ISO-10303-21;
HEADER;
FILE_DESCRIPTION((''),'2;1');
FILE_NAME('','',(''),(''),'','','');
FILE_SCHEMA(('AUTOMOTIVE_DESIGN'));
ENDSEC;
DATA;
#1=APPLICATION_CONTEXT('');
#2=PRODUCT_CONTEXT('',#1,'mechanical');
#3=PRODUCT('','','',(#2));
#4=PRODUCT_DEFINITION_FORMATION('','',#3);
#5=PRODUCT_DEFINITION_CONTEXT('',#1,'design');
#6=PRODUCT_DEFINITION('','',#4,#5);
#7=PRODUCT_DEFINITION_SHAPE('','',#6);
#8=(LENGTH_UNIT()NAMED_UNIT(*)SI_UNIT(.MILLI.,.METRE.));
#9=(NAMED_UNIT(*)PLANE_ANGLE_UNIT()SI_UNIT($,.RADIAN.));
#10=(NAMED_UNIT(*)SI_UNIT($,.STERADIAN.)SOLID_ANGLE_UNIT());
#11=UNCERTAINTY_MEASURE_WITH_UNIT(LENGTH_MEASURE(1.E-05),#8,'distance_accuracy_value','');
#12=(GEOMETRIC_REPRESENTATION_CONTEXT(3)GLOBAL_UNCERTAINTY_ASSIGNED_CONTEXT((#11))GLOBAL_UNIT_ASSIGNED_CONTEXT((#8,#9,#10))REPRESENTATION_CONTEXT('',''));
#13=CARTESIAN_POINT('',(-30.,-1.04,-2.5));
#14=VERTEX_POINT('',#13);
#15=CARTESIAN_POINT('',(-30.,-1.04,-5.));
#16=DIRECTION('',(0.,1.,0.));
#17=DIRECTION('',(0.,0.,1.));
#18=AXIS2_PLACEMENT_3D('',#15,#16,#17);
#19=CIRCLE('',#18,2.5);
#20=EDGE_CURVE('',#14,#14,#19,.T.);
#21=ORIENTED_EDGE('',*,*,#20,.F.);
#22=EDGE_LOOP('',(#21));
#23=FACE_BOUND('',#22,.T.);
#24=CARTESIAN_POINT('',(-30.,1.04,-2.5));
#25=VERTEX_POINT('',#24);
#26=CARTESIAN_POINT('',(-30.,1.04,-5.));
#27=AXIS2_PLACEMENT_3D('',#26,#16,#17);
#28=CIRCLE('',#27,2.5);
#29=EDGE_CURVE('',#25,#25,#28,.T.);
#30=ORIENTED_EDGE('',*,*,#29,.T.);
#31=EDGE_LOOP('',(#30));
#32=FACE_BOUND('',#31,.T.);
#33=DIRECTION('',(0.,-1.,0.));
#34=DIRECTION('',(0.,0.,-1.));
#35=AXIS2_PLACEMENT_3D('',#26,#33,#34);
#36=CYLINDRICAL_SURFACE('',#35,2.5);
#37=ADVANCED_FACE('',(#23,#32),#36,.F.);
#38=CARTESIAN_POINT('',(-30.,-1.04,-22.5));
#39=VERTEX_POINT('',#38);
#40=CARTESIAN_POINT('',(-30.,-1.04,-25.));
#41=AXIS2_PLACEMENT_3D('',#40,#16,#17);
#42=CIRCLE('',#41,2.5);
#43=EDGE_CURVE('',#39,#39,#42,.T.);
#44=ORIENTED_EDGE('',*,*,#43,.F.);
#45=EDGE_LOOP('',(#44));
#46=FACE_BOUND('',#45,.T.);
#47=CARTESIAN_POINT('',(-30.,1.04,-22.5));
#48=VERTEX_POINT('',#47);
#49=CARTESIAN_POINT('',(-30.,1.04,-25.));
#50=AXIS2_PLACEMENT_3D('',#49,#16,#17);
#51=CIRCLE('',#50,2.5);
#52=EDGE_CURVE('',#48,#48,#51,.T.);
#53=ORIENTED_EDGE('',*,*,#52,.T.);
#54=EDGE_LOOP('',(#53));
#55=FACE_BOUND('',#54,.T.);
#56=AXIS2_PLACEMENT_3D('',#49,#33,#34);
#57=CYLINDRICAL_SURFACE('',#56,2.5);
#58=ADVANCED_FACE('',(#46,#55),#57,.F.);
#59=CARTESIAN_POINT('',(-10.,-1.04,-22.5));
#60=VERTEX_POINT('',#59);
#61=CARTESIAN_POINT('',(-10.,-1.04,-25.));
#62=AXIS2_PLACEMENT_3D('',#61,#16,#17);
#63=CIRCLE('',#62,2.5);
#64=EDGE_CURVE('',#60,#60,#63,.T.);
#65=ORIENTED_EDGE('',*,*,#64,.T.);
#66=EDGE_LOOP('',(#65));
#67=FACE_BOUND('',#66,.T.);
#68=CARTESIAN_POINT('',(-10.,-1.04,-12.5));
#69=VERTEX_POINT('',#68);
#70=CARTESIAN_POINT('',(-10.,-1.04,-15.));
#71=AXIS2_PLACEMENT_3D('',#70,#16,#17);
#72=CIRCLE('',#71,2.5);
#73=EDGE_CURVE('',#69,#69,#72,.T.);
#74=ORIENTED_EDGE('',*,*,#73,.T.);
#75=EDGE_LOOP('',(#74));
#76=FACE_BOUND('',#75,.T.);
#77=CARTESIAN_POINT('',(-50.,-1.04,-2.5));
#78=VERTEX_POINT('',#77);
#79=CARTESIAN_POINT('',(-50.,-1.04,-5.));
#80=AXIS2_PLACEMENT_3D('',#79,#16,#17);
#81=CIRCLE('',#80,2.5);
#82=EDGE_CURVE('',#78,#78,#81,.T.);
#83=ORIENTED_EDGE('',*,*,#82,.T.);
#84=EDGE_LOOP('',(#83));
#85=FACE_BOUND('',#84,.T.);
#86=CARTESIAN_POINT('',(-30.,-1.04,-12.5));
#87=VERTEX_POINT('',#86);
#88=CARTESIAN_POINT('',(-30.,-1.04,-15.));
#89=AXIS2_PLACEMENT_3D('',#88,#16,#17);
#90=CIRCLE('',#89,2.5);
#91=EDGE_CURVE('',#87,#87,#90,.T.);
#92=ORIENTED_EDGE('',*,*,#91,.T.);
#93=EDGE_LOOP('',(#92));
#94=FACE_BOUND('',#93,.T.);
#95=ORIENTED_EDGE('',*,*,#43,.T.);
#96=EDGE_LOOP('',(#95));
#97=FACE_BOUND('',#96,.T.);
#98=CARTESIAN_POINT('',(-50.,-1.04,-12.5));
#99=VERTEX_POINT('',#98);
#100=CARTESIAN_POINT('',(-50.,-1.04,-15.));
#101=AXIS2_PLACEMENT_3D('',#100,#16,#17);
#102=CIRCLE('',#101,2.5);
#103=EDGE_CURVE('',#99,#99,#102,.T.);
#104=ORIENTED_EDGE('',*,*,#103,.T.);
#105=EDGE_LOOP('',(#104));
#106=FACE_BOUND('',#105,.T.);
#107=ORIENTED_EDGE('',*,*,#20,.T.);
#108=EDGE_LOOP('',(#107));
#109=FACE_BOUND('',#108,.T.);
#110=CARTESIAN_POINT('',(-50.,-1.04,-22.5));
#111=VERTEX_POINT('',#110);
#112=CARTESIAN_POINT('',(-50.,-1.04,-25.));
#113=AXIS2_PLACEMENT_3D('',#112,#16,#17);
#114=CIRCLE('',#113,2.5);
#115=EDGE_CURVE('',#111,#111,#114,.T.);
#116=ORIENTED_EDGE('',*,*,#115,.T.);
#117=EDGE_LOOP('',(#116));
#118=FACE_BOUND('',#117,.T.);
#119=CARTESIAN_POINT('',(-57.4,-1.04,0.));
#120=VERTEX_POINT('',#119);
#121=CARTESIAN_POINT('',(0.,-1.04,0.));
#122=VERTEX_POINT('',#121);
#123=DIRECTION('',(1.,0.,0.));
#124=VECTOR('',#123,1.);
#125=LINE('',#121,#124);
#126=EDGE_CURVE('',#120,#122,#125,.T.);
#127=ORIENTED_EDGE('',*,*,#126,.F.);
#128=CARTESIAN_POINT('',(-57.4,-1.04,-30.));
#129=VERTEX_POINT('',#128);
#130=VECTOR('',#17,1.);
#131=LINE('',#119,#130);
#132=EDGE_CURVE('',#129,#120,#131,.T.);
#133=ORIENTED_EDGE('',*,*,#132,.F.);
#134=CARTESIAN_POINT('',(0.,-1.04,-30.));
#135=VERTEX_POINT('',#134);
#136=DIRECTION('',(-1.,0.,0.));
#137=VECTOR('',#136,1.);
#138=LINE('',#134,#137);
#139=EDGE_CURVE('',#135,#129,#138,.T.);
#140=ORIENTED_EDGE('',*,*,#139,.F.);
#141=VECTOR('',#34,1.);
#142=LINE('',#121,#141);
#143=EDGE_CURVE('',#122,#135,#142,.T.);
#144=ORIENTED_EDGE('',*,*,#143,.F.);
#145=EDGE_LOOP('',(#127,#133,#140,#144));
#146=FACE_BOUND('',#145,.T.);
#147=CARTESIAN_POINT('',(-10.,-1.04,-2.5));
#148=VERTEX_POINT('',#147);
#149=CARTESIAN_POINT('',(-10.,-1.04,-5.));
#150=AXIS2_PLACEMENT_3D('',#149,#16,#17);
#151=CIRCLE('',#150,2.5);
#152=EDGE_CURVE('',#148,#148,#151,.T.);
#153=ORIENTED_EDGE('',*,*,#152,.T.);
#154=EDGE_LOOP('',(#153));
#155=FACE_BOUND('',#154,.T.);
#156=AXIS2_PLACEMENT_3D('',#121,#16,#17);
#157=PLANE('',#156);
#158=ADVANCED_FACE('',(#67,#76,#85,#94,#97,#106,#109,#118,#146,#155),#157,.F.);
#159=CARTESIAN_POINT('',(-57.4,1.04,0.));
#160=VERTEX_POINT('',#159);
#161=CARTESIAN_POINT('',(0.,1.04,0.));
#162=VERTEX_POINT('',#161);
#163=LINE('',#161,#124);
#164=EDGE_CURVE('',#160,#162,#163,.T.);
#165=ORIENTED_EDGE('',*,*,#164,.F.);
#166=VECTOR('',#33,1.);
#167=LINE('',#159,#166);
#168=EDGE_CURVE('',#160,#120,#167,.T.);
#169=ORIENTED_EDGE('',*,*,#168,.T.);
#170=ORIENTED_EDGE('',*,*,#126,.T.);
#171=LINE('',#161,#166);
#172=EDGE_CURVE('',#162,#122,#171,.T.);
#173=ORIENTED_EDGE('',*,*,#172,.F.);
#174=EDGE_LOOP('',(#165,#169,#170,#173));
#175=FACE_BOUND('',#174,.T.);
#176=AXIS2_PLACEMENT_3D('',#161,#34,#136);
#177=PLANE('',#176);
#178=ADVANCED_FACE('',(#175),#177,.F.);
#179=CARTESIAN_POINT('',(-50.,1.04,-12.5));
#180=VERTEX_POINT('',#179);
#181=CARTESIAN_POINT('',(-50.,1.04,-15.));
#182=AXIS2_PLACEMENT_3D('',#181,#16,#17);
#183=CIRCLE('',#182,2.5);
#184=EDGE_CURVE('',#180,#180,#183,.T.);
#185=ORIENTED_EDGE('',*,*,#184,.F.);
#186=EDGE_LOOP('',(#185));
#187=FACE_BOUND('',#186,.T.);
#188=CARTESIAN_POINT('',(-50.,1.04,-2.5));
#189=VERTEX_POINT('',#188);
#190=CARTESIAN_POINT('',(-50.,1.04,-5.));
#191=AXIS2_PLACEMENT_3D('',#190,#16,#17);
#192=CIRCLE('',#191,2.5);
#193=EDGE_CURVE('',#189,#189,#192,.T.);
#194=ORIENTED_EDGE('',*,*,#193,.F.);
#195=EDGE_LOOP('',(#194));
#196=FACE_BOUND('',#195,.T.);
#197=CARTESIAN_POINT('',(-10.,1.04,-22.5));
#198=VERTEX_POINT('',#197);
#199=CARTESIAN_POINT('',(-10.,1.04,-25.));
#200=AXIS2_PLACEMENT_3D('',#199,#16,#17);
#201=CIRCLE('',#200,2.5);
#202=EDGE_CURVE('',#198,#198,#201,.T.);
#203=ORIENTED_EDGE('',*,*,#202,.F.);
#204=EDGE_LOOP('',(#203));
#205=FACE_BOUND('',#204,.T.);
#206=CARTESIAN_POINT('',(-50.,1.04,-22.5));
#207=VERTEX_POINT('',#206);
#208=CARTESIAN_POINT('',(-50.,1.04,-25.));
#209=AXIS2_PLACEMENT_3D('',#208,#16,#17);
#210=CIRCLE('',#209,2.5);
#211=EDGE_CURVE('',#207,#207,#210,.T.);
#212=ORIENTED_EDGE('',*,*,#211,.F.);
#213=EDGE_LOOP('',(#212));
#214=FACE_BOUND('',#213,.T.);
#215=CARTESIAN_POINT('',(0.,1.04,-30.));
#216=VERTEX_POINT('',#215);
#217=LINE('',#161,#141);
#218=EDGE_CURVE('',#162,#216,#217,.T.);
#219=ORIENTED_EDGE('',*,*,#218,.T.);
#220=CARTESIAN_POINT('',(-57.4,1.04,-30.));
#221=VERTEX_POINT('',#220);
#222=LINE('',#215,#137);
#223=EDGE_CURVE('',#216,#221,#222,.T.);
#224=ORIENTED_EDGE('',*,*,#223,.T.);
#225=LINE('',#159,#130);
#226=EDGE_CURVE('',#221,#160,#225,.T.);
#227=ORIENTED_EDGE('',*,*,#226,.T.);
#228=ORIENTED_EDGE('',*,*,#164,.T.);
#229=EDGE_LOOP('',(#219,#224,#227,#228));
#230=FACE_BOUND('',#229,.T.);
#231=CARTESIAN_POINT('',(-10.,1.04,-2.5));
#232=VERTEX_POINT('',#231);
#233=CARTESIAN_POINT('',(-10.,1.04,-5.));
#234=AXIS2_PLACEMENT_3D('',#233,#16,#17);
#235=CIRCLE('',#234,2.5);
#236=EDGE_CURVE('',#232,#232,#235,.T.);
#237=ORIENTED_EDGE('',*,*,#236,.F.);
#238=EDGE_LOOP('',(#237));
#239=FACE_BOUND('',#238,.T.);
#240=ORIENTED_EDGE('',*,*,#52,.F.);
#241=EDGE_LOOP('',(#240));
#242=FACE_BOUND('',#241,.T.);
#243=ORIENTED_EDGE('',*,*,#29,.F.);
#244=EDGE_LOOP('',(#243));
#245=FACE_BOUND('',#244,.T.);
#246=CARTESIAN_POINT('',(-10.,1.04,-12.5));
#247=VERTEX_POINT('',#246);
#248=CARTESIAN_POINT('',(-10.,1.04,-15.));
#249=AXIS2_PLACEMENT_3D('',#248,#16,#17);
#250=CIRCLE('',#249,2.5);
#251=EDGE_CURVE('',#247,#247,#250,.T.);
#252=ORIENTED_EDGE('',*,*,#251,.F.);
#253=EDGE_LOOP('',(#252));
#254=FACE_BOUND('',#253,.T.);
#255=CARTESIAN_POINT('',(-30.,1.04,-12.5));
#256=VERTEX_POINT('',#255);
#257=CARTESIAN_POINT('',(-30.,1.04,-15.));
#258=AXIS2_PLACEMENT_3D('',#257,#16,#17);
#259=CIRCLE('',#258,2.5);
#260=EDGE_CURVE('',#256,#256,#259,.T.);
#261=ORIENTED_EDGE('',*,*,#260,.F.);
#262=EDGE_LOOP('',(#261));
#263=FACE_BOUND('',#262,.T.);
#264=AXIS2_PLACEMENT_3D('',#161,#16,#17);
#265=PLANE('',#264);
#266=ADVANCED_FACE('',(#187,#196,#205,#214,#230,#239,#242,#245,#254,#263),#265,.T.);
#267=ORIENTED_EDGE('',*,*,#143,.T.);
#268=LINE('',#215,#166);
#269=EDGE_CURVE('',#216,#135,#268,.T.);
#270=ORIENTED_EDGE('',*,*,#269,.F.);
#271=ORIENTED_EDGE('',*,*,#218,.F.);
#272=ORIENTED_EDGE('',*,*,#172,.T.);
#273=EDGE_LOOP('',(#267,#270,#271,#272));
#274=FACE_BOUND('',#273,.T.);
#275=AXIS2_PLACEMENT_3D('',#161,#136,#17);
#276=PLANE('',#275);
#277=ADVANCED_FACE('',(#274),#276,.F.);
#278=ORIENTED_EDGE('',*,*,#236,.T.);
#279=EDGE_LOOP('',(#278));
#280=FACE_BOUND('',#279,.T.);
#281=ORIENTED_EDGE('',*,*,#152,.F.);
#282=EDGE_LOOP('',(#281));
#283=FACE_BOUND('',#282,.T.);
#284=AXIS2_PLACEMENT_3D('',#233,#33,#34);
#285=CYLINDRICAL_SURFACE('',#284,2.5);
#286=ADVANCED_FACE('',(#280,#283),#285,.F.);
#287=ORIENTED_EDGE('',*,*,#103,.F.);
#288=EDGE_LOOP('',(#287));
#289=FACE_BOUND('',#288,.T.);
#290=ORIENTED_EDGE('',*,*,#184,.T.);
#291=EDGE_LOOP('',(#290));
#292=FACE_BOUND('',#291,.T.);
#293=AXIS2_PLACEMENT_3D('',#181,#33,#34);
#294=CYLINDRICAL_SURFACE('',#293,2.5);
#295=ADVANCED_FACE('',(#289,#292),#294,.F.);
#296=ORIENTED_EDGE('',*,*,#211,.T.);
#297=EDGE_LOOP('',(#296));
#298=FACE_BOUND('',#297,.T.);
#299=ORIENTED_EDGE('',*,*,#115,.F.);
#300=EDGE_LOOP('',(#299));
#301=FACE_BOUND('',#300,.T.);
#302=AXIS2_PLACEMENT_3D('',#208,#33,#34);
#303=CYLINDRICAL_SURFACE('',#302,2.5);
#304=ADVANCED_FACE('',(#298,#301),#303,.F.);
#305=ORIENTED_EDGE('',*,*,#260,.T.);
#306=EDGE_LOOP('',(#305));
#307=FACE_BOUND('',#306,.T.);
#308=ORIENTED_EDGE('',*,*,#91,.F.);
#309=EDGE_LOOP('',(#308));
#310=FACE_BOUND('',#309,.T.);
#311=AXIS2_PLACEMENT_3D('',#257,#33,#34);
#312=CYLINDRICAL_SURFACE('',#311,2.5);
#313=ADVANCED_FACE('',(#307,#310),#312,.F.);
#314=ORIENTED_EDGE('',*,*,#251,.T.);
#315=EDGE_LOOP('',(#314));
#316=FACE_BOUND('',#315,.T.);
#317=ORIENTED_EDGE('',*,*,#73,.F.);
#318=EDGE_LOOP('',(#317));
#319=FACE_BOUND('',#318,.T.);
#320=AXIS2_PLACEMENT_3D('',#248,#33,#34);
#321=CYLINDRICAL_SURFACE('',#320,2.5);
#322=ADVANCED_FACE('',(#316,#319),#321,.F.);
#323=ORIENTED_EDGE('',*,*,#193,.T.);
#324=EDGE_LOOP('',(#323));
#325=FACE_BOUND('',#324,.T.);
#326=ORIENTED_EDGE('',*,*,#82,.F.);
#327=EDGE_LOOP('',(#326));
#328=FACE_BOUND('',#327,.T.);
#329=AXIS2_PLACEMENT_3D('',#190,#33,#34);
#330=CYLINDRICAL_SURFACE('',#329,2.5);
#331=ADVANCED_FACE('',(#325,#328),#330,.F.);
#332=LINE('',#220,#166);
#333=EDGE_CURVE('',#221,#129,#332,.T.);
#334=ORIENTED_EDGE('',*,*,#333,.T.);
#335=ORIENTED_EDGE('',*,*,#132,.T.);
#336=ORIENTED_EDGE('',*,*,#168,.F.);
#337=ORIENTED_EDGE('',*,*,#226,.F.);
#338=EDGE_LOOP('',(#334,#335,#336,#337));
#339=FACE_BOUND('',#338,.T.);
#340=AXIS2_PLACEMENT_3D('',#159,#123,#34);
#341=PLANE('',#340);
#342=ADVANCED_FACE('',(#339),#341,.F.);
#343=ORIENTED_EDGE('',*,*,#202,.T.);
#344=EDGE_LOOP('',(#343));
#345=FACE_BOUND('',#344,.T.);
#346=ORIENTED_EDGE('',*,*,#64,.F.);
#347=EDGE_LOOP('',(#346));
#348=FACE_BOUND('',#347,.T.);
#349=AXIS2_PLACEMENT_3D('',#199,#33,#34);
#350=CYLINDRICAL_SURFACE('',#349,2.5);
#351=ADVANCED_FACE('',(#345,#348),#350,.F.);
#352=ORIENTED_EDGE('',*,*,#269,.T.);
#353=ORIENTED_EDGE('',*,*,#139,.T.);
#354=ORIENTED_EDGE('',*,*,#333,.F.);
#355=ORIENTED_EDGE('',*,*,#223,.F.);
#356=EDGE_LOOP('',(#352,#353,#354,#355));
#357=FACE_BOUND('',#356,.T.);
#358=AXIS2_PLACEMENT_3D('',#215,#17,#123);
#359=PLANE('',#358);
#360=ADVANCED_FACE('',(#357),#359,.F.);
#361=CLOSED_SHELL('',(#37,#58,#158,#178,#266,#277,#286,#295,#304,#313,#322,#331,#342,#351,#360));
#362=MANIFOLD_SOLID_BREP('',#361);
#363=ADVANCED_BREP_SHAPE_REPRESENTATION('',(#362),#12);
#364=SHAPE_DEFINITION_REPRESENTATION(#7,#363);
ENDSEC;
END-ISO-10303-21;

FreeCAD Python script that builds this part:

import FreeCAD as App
import Part
import Sketcher
from FreeCAD import Vector
Q = App.Units.Quantity


def add_polygon(sketch, points):
    """Adds a closed chain of lines whose ends are joined by coincident constraints."""
    first, n = sketch.GeometryCount, len(points)
    for a, b in zip(points, points[1:] + points[:1]):
        sketch.addGeometry(Part.LineSegment(App.Vector(*a, 0), App.Vector(*b, 0)), False)
    for i in range(n):
        sketch.addConstraint(Sketcher.Constraint("Coincident", first + i, 2, first + (i + 1) % n, 1))

doc = App.newDocument("Part")
body = doc.addObject("PartDesign::Body", "Body")

sketch1 = body.newObject("Sketcher::SketchObject", "Sketch")
sketch1.AttachmentSupport = (doc.getObject("XZ_Plane"), [""])
sketch1.MapMode = "FlatFace"
add_polygon(sketch1, [(-57.4, -30), (-57.4, 0), (0, 0), (0, -30)])
sketch1.addGeometry(Part.Circle(Vector(-50, -5, 0), Vector(0, 0, 1), 2.5), False)
sketch1.addGeometry(Part.Circle(Vector(-30, -5, 0), Vector(0, 0, 1), 2.5), False)
sketch1.addGeometry(Part.Circle(Vector(-10, -5, 0), Vector(0, 0, 1), 2.5), False)
sketch1.addGeometry(Part.Circle(Vector(-50, -15, 0), Vector(0, 0, 1), 2.5), False)
sketch1.addGeometry(Part.Circle(Vector(-50, -25, 0), Vector(0, 0, 1), 2.5), False)
sketch1.addGeometry(Part.Circle(Vector(-30, -15, 0), Vector(0, 0, 1), 2.5), False)
sketch1.addGeometry(Part.Circle(Vector(-10, -15, 0), Vector(0, 0, 1), 2.5), False)
sketch1.addGeometry(Part.Circle(Vector(-30, -25, 0), Vector(0, 0, 1), 2.5), False)
sketch1.addGeometry(Part.Circle(Vector(-10, -25, 0), Vector(0, 0, 1), 2.5), False)
sketch1.addConstraint(Sketcher.Constraint("Vertical", 0))
sketch1.addConstraint(Sketcher.Constraint("Horizontal", 1))
sketch1.addConstraint(Sketcher.Constraint("Vertical", 2))
sketch1.addConstraint(Sketcher.Constraint("Horizontal", 3))
sketch1.addConstraint(Sketcher.Constraint("Coincident", 1, 2, -1, 1))
sketch1.addConstraint(Sketcher.Constraint("Equal", 4, 5))
sketch1.addConstraint(Sketcher.Constraint("Equal", 5, 6))
sketch1.addConstraint(Sketcher.Constraint("Equal", 6, 7))
sketch1.addConstraint(Sketcher.Constraint("Equal", 7, 8))
sketch1.addConstraint(Sketcher.Constraint("Equal", 8, 9))
sketch1.addConstraint(Sketcher.Constraint("Equal", 9, 10))
sketch1.addConstraint(Sketcher.Constraint("Equal", 10, 11))
sketch1.addConstraint(Sketcher.Constraint("Equal", 11, 12))
sketch1.addConstraint(Sketcher.Constraint("Horizontal", 4, 3, 5, 3))
sketch1.addConstraint(Sketcher.Constraint("Horizontal", 5, 3, 6, 3))
sketch1.addConstraint(Sketcher.Constraint("Horizontal", 7, 3, 9, 3))
sketch1.addConstraint(Sketcher.Constraint("Horizontal", 9, 3, 10, 3))
sketch1.addConstraint(Sketcher.Constraint("Horizontal", 8, 3, 11, 3))
sketch1.addConstraint(Sketcher.Constraint("Horizontal", 11, 3, 12, 3))
sketch1.addConstraint(Sketcher.Constraint("Vertical", 4, 3, 7, 3))
sketch1.addConstraint(Sketcher.Constraint("Vertical", 7, 3, 8, 3))
sketch1.addConstraint(Sketcher.Constraint("Vertical", 5, 3, 9, 3))
sketch1.addConstraint(Sketcher.Constraint("Vertical", 6, 3, 10, 3))
sketch1.addConstraint(Sketcher.Constraint("Vertical", 9, 3, 11, 3))
sketch1.addConstraint(Sketcher.Constraint("Vertical", 10, 3, 12, 3))
sketch1.addConstraint(Sketcher.Constraint("Diameter", 4, Q("5 mm")))
sketch1.addConstraint(Sketcher.Constraint("DistanceY", 0, 1, 0, 2, Q("30 mm")))
sketch1.addConstraint(Sketcher.Constraint("DistanceX", 1, 1, 1, 2, Q("57.4 mm")))
sketch1.addConstraint(Sketcher.Constraint("DistanceX", 4, 3, -1, 1, Q("50 mm")))
sketch1.addConstraint(Sketcher.Constraint("DistanceY", 4, 3, -1, 1, Q("5 mm")))
sketch1.addConstraint(Sketcher.Constraint("DistanceX", 5, 3, -1, 1, Q("30 mm")))
sketch1.addConstraint(Sketcher.Constraint("DistanceX", 6, 3, -1, 1, Q("10 mm")))
sketch1.addConstraint(Sketcher.Constraint("DistanceY", 7, 3, -1, 1, Q("15 mm")))
sketch1.addConstraint(Sketcher.Constraint("DistanceY", 8, 3, -1, 1, Q("25 mm")))
pad1 = body.newObject("PartDesign::Pad", "Pad")
pad1.Profile = sketch1
pad1.Length = 2.08
pad1.Midplane = True

doc.recompute()
